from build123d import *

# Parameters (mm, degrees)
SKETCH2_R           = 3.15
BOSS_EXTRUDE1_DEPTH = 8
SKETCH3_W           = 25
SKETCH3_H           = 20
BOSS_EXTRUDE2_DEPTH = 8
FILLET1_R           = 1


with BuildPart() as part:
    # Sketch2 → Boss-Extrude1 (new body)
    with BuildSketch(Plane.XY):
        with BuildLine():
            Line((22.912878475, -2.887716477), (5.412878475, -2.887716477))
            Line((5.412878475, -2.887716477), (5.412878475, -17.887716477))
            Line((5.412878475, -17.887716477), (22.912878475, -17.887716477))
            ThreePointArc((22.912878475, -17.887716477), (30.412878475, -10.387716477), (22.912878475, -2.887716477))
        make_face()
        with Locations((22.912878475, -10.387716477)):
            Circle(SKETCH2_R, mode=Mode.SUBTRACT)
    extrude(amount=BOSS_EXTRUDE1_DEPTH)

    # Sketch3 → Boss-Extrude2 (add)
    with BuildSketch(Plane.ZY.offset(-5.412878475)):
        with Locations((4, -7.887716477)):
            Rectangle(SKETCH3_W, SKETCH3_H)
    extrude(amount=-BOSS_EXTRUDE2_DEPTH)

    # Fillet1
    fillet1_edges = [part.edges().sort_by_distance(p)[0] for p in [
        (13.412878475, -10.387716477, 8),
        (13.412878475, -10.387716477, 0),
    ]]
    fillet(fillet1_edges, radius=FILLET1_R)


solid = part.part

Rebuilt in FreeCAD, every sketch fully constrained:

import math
import FreeCAD as App
import Part
import Sketcher
from FreeCAD import Vector
Q = App.Units.Quantity


def edges_at(feature, points):
    """Names of the edges that pass closest to the given points."""
    edges = feature.Shape.Edges
    near = lambda p: min(range(len(edges)), key=lambda i: edges[i].distToShape(Part.Vertex(*p))[0])
    return sorted({f"Edge{near(p) + 1}" for p in points})


def add_polygon(sketch, points):
    """Adds a closed chain of lines whose ends are joined by coincident constraints."""
    first, n = sketch.GeometryCount, len(points)
    for a, b in zip(points, points[1:] + points[:1]):
        sketch.addGeometry(Part.LineSegment(App.Vector(*a, 0), App.Vector(*b, 0)), False)
    for i in range(n):
        sketch.addConstraint(Sketcher.Constraint("Coincident", first + i, 2, first + (i + 1) % n, 1))

doc = App.newDocument("Part")
params = doc.addObject("Spreadsheet::Sheet", "Params")
for row, (alias, value) in enumerate([
    ("sketch1_diameter", "6.3 mm"),
    ("sketch1_radius", "7.5 mm"),
    ("sketch1_width", "17.5 mm"),
    ("pad1_length", "8 mm"),
    ("sketch2_width", "20 mm"),
    ("sketch2_height", "25 mm"),
    ("pad2_length", "8 mm"),
    ("fillet_radius", "1 mm"),
], start=1):
    params.set(f"A{row}", alias)
    params.set(f"B{row}", "=" + value)
    params.setAlias(f"B{row}", alias)

body = doc.addObject("PartDesign::Body", "Body")

# Sketch on XY plane
sketch1 = doc.addObject("Sketcher::SketchObject", "Sketch")
body.addObject(sketch1)
sketch1.AttachmentSupport = (doc.XY_Plane, [""])
sketch1.MapMode = "FlatFace"
sketch1.addGeometry([
    Part.LineSegment(Vector(22.912878, -2.887716, 0), Vector(5.412878, -2.887716, 0)),  # 0
    Part.LineSegment(Vector(5.412878, -2.887716, 0), Vector(5.412878, -17.887716, 0)),  # 1
    Part.LineSegment(Vector(5.412878, -17.887716, 0), Vector(22.912878, -17.887716, 0)),  # 2
    Part.ArcOfCircle(Part.Circle(Vector(22.912878, -10.387716, 0), Vector(0, 0, 1), 7.5), math.radians(-90), math.radians(90)),  # 3
    Part.Circle(Vector(22.912878, -10.387716, 0), Vector(0, 0, 1), 3.15),  # 4
], False)
sketch1.addConstraint([
    Sketcher.Constraint("Coincident", 0, 2, 1, 1),
    Sketcher.Constraint("Coincident", 1, 2, 2, 1),
    Sketcher.Constraint("Tangent", 2, 2, 3, 1),
    Sketcher.Constraint("Tangent", 3, 2, 0, 1),
    Sketcher.Constraint("Horizontal", 0),
    Sketcher.Constraint("Vertical", 1),
    Sketcher.Constraint("Horizontal", 2),
    Sketcher.Constraint("Coincident", 4, 3, 3, 3),
    Sketcher.Constraint("Diameter", 4, Q("6.3 mm")),
    Sketcher.Constraint("Radius", 3, Q("7.5 mm")),
    Sketcher.Constraint("DistanceX", 0, 2, 0, 1, Q("17.5 mm")),
    Sketcher.Constraint("DistanceX", -1, 1, 3, 3, Q("22.912878 mm")),
    Sketcher.Constraint("DistanceY", 3, 3, -1, 1, Q("10.387716 mm")),
])
sketch1.setExpression("Constraints[8]", "Params.sketch1_diameter")
sketch1.setExpression("Constraints[9]", "Params.sketch1_radius")
sketch1.setExpression("Constraints[10]", "Params.sketch1_width")
pad1 = doc.addObject("PartDesign::Pad", "Pad")
body.addObject(pad1)
pad1.Profile = sketch1
pad1.setExpression("Length", "Params.pad1_length")

# Sketch on YZ plane
sketch2 = doc.addObject("Sketcher::SketchObject", "Sketch001")
body.addObject(sketch2)
sketch2.AttachmentSupport = (doc.YZ_Plane, [""])
sketch2.MapMode = "FlatFace"
sketch2.AttachmentOffset = App.Placement(Vector(0, 0, 5.412878), App.Rotation())
add_polygon(sketch2, [(2.112284, -8.5), (-17.887716, -8.5), (-17.887716, 16.5), (2.112284, 16.5)])  # lines 0-3
sketch2.addConstraint([
    Sketcher.Constraint("Horizontal", 0),
    Sketcher.Constraint("Vertical", 1),
    Sketcher.Constraint("Horizontal", 2),
    Sketcher.Constraint("Vertical", 3),
    Sketcher.Constraint("DistanceX", 0, 2, 0, 1, Q("20 mm")),
    Sketcher.Constraint("DistanceY", 1, 1, 1, 2, Q("25 mm")),
    Sketcher.Constraint("DistanceY", 0, 2, -1, 1, Q("8.5 mm")),
    Sketcher.Constraint("DistanceX", 0, 2, -1, 1, Q("17.887716 mm")),
])
sketch2.setExpression("Constraints[8]", "Params.sketch2_width")
sketch2.setExpression("Constraints[9]", "Params.sketch2_height")
pad2 = doc.addObject("PartDesign::Pad", "Pad001")
body.addObject(pad2)
pad2.Profile = sketch2
pad2.setExpression("Length", "Params.pad2_length")
doc.recompute()

fillet = doc.addObject("PartDesign::Fillet", "Fillet")
body.addObject(fillet)
fillet.Base = (pad2, edges_at(pad2, [(13.413, -10.388, 8), (13.413, -10.388, 0)]))
fillet.setExpression("Radius", "Params.fillet_radius")

doc.recompute()
